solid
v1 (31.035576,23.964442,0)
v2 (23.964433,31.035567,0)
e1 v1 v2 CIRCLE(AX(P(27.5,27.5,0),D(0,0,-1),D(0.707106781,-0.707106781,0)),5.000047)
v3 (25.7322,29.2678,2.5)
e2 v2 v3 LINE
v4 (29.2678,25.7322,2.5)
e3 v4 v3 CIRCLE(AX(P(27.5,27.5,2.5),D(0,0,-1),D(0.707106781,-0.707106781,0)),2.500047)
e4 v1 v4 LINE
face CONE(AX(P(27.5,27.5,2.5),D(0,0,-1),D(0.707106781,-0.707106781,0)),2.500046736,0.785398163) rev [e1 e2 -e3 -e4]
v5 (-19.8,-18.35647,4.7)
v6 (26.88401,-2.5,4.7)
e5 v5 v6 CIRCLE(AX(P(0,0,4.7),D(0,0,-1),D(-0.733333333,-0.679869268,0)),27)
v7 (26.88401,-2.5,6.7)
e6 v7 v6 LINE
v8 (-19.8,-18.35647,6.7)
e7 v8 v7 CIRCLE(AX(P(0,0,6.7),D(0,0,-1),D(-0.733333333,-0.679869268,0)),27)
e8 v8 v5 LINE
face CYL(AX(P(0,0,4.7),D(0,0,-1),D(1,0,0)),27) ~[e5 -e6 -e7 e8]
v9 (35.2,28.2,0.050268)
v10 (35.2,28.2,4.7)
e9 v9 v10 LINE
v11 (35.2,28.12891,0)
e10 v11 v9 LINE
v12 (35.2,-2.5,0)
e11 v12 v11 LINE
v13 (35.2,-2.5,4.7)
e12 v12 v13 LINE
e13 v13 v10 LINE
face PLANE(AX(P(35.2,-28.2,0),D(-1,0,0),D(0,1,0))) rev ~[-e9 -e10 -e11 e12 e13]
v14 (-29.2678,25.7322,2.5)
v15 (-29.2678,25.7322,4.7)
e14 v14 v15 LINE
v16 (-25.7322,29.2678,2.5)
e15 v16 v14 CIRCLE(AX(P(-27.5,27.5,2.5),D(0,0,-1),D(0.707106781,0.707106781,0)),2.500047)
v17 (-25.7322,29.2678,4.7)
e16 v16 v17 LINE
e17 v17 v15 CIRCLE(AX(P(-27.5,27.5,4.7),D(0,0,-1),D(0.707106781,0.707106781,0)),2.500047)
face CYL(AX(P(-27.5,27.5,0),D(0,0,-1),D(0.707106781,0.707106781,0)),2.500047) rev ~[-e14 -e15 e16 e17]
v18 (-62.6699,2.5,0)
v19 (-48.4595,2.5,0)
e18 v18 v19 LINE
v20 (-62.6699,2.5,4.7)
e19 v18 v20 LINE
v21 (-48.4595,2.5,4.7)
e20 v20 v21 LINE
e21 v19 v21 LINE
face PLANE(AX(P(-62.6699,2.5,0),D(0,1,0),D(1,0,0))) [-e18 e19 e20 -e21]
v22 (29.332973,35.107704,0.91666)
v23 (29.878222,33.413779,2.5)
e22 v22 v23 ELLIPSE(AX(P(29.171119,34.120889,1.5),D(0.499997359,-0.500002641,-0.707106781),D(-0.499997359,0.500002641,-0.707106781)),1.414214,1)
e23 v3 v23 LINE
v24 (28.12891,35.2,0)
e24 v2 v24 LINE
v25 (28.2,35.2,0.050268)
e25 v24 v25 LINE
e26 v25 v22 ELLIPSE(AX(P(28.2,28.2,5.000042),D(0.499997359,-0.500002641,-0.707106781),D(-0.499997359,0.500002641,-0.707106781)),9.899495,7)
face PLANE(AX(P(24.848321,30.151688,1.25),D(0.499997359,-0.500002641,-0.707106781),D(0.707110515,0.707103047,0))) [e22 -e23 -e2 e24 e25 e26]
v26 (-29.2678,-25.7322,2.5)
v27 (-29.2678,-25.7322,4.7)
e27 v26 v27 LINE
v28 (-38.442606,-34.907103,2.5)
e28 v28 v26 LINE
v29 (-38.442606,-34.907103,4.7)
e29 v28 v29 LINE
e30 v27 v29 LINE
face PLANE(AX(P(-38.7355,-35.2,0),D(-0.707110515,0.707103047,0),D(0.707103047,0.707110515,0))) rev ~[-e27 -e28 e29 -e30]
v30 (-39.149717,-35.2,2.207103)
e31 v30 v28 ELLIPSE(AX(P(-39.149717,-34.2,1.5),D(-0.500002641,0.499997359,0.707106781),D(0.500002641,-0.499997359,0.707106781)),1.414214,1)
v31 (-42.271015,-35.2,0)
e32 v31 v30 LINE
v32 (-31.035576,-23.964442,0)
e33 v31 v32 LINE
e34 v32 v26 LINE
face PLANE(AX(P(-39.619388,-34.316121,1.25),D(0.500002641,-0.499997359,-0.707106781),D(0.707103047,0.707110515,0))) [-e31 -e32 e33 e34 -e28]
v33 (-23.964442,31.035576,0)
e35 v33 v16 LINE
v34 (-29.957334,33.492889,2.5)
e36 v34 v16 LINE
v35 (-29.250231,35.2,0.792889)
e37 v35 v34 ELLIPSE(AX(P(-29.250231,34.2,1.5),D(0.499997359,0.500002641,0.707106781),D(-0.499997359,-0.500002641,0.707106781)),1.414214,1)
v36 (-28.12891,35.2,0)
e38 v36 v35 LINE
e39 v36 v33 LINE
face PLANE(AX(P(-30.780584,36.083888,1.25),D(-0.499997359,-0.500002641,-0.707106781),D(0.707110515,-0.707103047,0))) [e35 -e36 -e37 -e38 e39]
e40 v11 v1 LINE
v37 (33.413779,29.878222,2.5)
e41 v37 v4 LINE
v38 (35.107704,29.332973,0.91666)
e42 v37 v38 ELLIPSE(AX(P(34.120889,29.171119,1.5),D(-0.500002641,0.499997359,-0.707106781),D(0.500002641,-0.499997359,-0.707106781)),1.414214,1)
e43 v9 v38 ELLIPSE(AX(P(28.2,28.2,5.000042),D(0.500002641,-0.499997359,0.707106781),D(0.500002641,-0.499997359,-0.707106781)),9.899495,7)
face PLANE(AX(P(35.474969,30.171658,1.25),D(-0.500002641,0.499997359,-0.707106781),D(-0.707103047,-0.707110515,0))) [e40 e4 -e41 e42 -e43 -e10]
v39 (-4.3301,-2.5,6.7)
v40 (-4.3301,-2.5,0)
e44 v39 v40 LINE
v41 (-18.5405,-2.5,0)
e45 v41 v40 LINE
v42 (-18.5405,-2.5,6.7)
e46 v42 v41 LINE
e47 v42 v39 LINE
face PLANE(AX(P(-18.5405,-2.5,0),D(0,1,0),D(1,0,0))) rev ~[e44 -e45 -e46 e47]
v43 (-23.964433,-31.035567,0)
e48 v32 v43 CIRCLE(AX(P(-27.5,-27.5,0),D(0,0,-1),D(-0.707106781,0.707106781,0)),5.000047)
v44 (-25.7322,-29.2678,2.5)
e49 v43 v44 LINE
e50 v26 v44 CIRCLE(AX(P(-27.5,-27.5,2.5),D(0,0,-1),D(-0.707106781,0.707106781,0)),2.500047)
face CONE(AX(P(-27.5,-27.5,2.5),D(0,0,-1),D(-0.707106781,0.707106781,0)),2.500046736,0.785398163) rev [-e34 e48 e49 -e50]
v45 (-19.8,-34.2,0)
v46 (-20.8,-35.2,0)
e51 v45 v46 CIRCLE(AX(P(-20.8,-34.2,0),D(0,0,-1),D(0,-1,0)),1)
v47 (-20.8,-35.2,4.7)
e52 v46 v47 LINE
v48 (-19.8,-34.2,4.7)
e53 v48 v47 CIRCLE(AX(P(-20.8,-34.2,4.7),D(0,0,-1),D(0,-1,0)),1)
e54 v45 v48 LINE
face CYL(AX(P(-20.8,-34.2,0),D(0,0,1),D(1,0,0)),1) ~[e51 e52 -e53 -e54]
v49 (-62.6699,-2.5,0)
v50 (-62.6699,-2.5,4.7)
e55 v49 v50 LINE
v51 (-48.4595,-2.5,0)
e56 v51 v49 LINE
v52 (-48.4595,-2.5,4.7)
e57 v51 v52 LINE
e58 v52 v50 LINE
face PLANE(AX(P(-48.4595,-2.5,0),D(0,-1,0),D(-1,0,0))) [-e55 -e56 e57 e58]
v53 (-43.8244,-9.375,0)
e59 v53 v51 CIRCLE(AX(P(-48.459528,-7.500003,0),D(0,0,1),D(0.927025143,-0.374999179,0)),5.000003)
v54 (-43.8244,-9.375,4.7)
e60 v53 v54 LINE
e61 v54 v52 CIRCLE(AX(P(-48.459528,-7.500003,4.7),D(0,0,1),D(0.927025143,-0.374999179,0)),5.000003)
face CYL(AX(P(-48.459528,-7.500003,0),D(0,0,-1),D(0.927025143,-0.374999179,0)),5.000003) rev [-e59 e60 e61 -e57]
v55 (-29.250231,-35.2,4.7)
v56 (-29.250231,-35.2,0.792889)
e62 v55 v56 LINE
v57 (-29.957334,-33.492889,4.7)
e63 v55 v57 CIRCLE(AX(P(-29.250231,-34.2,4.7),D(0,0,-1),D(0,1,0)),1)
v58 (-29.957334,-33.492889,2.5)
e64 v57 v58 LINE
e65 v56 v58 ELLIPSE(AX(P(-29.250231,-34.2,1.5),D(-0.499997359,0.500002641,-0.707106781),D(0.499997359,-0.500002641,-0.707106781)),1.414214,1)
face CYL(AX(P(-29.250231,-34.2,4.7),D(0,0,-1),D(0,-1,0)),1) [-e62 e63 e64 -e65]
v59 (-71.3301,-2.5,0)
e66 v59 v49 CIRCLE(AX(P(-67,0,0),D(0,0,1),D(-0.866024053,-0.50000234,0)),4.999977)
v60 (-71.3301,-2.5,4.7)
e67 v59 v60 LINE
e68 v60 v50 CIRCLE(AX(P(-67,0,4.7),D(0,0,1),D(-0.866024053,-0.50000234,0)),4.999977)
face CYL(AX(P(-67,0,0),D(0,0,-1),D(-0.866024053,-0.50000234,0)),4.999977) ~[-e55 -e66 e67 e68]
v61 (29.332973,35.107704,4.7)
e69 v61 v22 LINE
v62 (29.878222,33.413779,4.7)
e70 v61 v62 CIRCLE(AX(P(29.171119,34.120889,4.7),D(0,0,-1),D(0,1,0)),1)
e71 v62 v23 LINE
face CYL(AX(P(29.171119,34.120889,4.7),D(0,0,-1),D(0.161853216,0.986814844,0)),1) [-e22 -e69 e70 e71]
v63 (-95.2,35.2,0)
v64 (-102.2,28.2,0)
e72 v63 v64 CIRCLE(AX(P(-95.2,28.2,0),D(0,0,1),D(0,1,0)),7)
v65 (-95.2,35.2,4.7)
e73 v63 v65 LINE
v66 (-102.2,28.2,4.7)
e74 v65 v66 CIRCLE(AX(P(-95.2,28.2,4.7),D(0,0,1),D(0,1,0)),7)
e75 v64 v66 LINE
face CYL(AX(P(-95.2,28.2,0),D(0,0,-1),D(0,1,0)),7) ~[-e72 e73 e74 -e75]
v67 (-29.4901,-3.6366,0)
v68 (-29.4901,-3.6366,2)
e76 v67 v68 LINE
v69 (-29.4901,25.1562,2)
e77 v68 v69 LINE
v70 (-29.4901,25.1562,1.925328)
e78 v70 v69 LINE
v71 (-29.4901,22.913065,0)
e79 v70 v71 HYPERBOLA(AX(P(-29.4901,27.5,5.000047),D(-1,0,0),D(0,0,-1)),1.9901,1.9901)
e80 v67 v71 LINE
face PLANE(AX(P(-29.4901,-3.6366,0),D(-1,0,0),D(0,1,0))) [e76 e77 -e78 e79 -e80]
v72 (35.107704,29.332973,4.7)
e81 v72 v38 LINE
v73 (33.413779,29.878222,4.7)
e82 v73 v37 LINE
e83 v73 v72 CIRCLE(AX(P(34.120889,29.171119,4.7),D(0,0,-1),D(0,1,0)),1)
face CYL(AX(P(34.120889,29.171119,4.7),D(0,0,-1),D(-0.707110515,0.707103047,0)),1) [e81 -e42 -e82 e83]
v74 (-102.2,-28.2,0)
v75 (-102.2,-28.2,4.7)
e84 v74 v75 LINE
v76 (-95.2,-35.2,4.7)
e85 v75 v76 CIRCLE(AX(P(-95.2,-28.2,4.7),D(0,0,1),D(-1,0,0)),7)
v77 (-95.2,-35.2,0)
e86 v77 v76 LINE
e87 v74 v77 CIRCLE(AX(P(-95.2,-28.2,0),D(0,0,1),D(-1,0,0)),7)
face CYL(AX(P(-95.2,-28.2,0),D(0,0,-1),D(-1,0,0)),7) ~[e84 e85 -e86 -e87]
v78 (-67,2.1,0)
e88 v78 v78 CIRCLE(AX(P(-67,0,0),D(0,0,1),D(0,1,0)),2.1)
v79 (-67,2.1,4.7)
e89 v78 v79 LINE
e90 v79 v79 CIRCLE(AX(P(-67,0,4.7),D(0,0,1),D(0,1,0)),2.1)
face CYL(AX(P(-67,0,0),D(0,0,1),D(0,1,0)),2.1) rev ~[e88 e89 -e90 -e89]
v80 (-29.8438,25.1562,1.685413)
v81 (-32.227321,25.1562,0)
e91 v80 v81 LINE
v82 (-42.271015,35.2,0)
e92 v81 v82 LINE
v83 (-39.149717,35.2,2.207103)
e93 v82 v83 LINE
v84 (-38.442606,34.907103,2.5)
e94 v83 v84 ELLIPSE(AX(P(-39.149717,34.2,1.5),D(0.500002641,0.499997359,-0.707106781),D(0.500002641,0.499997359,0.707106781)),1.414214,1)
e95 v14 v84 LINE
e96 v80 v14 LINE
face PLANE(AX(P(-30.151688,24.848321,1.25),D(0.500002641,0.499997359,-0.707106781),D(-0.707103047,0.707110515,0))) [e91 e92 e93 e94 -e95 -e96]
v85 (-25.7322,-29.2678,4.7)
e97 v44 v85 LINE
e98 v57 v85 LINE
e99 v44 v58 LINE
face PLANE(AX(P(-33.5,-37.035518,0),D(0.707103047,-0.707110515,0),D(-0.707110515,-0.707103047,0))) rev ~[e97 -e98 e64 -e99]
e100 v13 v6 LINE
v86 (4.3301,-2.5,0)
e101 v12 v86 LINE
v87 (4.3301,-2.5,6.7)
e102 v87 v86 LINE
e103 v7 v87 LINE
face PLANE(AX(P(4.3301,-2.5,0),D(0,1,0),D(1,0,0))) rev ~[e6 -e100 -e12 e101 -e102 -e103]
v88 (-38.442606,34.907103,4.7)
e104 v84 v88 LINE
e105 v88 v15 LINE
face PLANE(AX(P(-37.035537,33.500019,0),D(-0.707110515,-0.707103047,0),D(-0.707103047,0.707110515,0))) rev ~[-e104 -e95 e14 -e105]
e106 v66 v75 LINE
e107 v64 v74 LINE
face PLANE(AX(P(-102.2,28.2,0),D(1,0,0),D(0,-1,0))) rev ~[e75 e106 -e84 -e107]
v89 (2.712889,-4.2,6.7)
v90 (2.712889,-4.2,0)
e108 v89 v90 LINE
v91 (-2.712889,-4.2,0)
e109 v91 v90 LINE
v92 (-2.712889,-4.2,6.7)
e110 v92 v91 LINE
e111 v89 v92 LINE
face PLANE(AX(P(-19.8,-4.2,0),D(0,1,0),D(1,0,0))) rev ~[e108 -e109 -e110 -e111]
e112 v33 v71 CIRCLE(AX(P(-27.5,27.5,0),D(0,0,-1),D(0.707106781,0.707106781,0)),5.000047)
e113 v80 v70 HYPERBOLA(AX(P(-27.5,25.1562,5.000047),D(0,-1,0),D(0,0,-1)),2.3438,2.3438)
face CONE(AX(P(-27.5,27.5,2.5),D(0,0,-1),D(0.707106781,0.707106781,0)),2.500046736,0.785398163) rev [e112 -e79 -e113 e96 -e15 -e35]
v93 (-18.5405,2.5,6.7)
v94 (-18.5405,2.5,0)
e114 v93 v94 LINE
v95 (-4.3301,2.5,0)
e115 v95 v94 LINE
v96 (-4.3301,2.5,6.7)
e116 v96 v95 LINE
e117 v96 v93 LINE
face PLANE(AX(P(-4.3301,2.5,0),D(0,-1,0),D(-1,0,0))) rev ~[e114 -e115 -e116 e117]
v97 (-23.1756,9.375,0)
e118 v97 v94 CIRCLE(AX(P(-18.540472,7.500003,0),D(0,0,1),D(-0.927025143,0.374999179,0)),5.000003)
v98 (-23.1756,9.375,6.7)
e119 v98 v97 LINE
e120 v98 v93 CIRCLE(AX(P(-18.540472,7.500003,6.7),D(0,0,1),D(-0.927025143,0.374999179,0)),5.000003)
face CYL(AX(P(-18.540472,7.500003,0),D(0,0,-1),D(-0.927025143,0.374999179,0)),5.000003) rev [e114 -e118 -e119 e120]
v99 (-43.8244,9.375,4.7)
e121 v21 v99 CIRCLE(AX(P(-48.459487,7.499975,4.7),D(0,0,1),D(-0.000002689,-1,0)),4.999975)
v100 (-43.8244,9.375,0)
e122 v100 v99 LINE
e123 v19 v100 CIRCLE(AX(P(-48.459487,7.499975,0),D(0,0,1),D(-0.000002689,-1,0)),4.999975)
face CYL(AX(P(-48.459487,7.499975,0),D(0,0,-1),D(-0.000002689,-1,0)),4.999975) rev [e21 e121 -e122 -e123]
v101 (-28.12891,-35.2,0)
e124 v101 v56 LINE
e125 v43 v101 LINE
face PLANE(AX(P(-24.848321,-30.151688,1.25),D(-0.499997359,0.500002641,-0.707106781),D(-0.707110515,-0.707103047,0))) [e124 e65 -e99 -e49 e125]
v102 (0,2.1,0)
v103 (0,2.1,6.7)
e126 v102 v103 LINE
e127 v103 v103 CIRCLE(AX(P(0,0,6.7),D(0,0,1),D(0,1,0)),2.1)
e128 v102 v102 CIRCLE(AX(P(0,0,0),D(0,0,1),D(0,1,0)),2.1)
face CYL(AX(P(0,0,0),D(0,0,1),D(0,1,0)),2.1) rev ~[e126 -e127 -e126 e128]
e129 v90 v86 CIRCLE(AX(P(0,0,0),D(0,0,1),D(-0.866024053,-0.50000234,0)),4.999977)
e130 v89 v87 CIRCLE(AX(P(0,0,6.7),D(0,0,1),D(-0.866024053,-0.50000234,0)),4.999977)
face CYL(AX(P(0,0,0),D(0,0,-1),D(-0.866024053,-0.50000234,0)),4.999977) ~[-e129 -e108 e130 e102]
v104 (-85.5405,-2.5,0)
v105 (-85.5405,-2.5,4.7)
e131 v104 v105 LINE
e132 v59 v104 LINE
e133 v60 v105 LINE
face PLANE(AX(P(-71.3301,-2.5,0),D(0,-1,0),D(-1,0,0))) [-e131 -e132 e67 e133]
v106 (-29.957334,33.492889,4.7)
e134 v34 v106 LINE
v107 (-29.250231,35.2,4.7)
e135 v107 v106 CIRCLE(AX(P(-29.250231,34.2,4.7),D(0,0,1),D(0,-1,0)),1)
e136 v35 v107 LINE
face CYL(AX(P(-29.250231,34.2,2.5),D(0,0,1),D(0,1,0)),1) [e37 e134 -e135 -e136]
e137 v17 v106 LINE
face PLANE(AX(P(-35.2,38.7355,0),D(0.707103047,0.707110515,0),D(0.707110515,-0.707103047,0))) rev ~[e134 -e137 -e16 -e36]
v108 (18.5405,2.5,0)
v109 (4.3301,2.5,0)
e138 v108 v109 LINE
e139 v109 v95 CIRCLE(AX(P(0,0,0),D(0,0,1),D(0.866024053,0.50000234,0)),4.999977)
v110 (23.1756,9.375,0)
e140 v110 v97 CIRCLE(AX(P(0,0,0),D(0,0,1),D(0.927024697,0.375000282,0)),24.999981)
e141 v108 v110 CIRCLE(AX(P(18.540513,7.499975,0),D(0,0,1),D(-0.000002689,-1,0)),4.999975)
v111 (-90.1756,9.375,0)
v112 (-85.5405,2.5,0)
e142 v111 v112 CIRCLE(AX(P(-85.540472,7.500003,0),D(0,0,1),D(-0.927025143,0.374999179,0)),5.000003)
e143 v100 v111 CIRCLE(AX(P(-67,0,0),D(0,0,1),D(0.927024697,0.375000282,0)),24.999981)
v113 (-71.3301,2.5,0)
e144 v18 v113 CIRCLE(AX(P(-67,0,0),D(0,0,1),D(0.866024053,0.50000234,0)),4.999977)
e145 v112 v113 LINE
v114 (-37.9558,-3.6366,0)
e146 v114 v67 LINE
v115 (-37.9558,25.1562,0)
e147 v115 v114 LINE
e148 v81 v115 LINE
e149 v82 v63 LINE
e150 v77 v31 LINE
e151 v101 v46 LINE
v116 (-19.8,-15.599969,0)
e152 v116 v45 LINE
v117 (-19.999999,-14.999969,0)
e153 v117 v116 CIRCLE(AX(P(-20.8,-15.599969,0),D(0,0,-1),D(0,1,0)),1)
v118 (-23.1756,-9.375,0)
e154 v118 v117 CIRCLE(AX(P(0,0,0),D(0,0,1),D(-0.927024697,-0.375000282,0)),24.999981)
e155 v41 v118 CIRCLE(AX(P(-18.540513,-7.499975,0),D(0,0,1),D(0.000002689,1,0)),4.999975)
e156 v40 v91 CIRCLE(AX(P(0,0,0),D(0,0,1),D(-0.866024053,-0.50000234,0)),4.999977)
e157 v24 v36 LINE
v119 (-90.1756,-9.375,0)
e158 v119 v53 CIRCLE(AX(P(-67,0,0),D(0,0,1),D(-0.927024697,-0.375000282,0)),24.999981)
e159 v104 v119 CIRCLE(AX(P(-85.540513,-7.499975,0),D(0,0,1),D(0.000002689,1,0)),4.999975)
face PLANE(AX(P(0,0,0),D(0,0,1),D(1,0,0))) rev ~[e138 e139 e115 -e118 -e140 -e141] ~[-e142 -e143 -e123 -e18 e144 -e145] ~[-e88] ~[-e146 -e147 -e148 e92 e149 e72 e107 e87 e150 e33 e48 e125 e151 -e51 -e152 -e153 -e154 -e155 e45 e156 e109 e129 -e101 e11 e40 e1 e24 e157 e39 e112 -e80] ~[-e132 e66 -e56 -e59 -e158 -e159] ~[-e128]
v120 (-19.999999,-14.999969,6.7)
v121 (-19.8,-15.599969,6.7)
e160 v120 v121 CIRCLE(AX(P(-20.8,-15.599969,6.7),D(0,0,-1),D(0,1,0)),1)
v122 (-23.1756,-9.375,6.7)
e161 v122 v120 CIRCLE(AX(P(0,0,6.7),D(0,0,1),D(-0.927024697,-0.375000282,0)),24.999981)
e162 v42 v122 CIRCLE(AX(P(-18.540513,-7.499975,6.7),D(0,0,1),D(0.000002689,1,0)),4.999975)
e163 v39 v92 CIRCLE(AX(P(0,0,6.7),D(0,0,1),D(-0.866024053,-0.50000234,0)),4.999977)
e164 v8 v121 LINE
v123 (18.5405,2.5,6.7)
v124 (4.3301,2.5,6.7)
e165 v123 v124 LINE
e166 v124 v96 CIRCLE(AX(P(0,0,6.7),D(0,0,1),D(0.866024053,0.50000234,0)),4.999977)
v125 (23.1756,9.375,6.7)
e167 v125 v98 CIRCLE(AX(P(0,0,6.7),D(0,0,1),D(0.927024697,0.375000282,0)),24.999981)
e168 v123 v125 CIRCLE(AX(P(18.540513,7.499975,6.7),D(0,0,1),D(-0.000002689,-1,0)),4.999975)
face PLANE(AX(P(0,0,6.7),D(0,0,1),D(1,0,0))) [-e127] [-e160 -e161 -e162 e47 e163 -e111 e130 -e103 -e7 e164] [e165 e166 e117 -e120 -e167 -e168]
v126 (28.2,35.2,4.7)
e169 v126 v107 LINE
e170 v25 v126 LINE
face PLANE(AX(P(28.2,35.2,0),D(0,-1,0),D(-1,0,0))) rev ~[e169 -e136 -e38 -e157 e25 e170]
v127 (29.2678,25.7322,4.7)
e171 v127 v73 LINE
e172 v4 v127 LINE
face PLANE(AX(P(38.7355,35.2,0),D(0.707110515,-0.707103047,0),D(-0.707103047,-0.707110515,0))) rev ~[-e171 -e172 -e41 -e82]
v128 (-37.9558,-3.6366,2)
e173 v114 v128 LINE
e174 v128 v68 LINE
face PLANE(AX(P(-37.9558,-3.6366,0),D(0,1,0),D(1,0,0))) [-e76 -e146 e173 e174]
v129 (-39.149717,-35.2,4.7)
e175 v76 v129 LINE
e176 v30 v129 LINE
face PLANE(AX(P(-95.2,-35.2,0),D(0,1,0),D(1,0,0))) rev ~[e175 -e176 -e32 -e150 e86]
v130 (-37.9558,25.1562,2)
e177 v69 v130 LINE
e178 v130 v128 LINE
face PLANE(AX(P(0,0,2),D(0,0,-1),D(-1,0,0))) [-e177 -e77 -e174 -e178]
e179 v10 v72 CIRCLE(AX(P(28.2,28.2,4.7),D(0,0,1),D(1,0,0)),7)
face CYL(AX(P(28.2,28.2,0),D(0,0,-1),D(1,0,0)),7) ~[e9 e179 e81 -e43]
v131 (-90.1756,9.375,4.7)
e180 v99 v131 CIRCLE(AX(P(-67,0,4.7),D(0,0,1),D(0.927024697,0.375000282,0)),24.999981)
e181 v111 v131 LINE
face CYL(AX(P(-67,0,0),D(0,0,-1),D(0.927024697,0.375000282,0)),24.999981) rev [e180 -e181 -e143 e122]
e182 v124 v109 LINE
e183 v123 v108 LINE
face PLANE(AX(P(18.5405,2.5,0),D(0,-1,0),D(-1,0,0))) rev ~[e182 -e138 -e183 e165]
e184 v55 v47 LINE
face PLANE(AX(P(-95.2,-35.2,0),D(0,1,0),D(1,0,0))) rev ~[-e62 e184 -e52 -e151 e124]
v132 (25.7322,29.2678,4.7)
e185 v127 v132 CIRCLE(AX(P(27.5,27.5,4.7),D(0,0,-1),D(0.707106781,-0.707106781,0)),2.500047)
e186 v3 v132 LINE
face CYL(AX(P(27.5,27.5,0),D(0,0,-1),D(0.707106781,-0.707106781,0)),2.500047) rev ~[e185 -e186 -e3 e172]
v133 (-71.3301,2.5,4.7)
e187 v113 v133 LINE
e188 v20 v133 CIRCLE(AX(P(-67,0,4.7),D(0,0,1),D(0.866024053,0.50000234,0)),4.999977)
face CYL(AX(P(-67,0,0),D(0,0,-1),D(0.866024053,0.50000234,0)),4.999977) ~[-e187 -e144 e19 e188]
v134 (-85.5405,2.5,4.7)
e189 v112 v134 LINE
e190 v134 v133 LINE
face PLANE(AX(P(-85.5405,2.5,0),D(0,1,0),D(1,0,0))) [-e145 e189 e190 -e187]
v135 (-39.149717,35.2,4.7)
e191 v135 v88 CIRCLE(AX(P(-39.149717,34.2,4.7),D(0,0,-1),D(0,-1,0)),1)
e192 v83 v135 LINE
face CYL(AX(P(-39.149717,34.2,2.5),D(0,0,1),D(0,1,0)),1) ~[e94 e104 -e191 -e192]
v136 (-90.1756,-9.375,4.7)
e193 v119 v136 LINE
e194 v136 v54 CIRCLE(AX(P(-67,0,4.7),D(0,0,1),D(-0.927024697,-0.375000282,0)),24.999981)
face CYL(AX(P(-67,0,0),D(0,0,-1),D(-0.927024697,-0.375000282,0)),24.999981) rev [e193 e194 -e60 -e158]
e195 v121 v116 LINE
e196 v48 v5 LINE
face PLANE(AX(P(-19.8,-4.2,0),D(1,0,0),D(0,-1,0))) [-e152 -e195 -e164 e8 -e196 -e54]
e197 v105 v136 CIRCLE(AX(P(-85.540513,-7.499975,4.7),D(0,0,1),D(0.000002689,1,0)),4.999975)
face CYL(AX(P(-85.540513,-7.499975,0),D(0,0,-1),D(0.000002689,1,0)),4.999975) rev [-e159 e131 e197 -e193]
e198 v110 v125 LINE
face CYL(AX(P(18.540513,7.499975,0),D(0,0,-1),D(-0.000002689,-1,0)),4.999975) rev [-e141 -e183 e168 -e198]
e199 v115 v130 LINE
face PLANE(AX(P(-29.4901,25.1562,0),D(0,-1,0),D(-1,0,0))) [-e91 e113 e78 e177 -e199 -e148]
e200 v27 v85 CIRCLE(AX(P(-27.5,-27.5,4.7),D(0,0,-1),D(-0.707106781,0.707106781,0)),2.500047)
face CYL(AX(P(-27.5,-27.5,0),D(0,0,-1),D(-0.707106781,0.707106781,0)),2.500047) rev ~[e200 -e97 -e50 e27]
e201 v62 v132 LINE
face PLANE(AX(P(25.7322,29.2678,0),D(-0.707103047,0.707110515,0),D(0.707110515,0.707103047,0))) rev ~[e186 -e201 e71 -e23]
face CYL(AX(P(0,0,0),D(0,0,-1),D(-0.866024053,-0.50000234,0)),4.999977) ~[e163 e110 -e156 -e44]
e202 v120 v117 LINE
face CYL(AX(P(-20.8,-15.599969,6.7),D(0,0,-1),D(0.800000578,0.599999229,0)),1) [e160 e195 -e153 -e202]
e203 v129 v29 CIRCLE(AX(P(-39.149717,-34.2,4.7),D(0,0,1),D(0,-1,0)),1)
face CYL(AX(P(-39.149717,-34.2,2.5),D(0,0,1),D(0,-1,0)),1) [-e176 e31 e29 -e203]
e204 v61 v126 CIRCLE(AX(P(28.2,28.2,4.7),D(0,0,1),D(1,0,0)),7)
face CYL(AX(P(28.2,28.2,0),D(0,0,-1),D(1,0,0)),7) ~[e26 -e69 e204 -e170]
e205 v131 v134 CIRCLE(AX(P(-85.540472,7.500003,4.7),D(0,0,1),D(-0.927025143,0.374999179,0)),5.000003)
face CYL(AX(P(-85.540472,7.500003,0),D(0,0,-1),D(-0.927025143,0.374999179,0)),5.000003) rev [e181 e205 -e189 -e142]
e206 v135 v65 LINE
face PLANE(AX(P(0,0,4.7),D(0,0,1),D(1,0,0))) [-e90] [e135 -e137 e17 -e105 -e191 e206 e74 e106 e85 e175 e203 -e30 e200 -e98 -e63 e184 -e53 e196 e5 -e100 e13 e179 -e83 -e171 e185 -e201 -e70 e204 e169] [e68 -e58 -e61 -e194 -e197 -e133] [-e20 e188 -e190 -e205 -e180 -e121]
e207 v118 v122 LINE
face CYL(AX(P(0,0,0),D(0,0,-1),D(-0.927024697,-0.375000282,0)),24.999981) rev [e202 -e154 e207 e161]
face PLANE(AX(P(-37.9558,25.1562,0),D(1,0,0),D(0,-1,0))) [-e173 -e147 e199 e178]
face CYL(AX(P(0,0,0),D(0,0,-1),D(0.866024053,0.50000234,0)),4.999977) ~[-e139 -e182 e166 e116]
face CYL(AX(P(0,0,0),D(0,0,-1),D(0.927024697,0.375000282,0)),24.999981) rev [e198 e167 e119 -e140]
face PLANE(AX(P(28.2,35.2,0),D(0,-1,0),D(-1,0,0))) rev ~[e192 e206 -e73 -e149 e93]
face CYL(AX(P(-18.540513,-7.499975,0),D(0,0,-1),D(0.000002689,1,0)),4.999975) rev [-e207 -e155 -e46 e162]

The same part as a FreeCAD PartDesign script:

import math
import FreeCAD as App
import Part
import Sketcher
from FreeCAD import Vector
Q = App.Units.Quantity


def edges_at(feature, points):
    """Names of the edges that pass closest to the given points."""
    edges = feature.Shape.Edges
    near = lambda p: min(range(len(edges)), key=lambda i: edges[i].distToShape(Part.Vertex(*p))[0])
    return sorted({f"Edge{near(p) + 1}" for p in points})

doc = App.newDocument("Part")
body = doc.addObject("PartDesign::Body", "Body")

sketch1 = body.newObject("Sketcher::SketchObject", "Sketch")
sketch1.AttachmentSupport = (doc.getObject("XY_Plane"), [""])
sketch1.MapMode = "FlatFace"
sketch1.addGeometry([
    Part.ArcOfCircle(Part.Circle(Vector(-95.2, -28.2, 0), Vector(0, 0, 1), 7), math.radians(180), math.radians(270)),
    Part.LineSegment(Vector(-95.2, -35.2, 0), Vector(28.2, -35.2, 0)),
    Part.ArcOfCircle(Part.Circle(Vector(28.2, -28.2, 0), Vector(0, 0, 1), 7), math.radians(-90), math.radians(0)),
    Part.LineSegment(Vector(35.2, -28.2, 0), Vector(35.2, 28.2, 0)),
    Part.ArcOfCircle(Part.Circle(Vector(28.2, 28.2, 0), Vector(0, 0, 1), 7), math.radians(0), math.radians(90)),
    Part.LineSegment(Vector(28.2, 35.2, 0), Vector(-95.2, 35.2, 0)),
    Part.ArcOfCircle(Part.Circle(Vector(-95.2, 28.2, 0), Vector(0, 0, 1), 7), math.radians(90), math.radians(180)),
    Part.LineSegment(Vector(-102.2, 28.2, 0), Vector(-102.2, -28.2, 0)),
    Part.ArcOfCircle(Part.Circle(Vector(-67, 0, 0), Vector(0, 0, 1), 25), math.radians(-158), math.radians(-22)),
    Part.ArcOfCircle(Part.Circle(Vector(-85.5, -7.5, 0), Vector(0, 0, 1), 5), math.radians(90), math.radians(202)),
    Part.LineSegment(Vector(-85.5, -2.5, 0), Vector(-71.3, -2.5, 0)),
    Part.ArcOfCircle(Part.Circle(Vector(-67, 0, 0), Vector(0, 0, 1), 5), math.radians(-150), math.radians(-30)),
    Part.LineSegment(Vector(-62.7, -2.5, 0), Vector(-48.5, -2.5, 0)),
    Part.ArcOfCircle(Part.Circle(Vector(-48.5, -7.5, 0), Vector(0, 0, 1), 5), math.radians(-22), math.radians(90)),
    Part.ArcOfCircle(Part.Circle(Vector(0, 0, 0), Vector(0, 0, 1), 25), math.radians(-158), math.radians(-22)),
    Part.ArcOfCircle(Part.Circle(Vector(-18.5, -7.5, 0), Vector(0, 0, 1), 5), math.radians(90), math.radians(202)),
    Part.LineSegment(Vector(-18.5, -2.5, 0), Vector(-4.3, -2.5, 0)),
    Part.ArcOfCircle(Part.Circle(Vector(0, 0, 0), Vector(0, 0, 1), 5), math.radians(-150), math.radians(-30)),
    Part.LineSegment(Vector(4.3, -2.5, 0), Vector(18.5, -2.5, 0)),
    Part.ArcOfCircle(Part.Circle(Vector(18.5, -7.5, 0), Vector(0, 0, 1), 5), math.radians(-22), math.radians(90)),
    Part.ArcOfCircle(Part.Circle(Vector(-67, 0, 0), Vector(0, 0, 1), 25), math.radians(22), math.radians(158)),
    Part.ArcOfCircle(Part.Circle(Vector(-48.5, 7.5, 0), Vector(0, 0, 1), 5), math.radians(-90), math.radians(22)),
    Part.LineSegment(Vector(-48.5, 2.5, 0), Vector(-62.7, 2.5, 0)),
    Part.ArcOfCircle(Part.Circle(Vector(-67, 0, 0), Vector(0, 0, 1), 5), math.radians(30), math.radians(150)),
    Part.LineSegment(Vector(-71.3, 2.5, 0), Vector(-85.5, 2.5, 0)),
    Part.ArcOfCircle(Part.Circle(Vector(-85.5, 7.5, 0), Vector(0, 0, 1), 5), math.radians(158), math.radians(270)),
    Part.ArcOfCircle(Part.Circle(Vector(0, 0, 0), Vector(0, 0, 1), 25), math.radians(22), math.radians(158)),
    Part.ArcOfCircle(Part.Circle(Vector(18.5, 7.5, 0), Vector(0, 0, 1), 5), math.radians(-90), math.radians(22)),
    Part.LineSegment(Vector(18.5, 2.5, 0), Vector(4.3, 2.5, 0)),
    Part.ArcOfCircle(Part.Circle(Vector(0, 0, 0), Vector(0, 0, 1), 5), math.radians(30), math.radians(150)),
    Part.LineSegment(Vector(-4.3, 2.5, 0), Vector(-18.5, 2.5, 0)),
    Part.ArcOfCircle(Part.Circle(Vector(-18.5, 7.5, 0), Vector(0, 0, 1), 5), math.radians(158), math.radians(270)),
], False)
sketch1.addConstraint([
    Sketcher.Constraint("Tangent", 0, 2, 1, 1),
    Sketcher.Constraint("Tangent", 1, 2, 2, 1),
    Sketcher.Constraint("Tangent", 2, 2, 3, 1),
    Sketcher.Constraint("Tangent", 3, 2, 4, 1),
    Sketcher.Constraint("Tangent", 4, 2, 5, 1),
    Sketcher.Constraint("Tangent", 5, 2, 6, 1),
    Sketcher.Constraint("Tangent", 6, 2, 7, 1),
    Sketcher.Constraint("Tangent", 7, 2, 0, 1),
    Sketcher.Constraint("Tangent", 8, 1, 9, 2),
    Sketcher.Constraint("Tangent", 9, 1, 10, 1),
    Sketcher.Constraint("Coincident", 10, 2, 11, 1),
    Sketcher.Constraint("Coincident", 11, 2, 12, 1),
    Sketcher.Constraint("Tangent", 12, 2, 13, 2),
    Sketcher.Constraint("Tangent", 13, 1, 8, 2),
    Sketcher.Constraint("Tangent", 14, 1, 15, 2),
    Sketcher.Constraint("Tangent", 15, 1, 16, 1),
    Sketcher.Constraint("Coincident", 16, 2, 17, 1),
    Sketcher.Constraint("Coincident", 17, 2, 18, 1),
    Sketcher.Constraint("Tangent", 18, 2, 19, 2),
    Sketcher.Constraint("Tangent", 19, 1, 14, 2),
    Sketcher.Constraint("Tangent", 20, 1, 21, 2),
    Sketcher.Constraint("Tangent", 21, 1, 22, 1),
    Sketcher.Constraint("Coincident", 22, 2, 23, 1),
    Sketcher.Constraint("Coincident", 23, 2, 24, 1),
    Sketcher.Constraint("Tangent", 24, 2, 25, 2),
    Sketcher.Constraint("Tangent", 25, 1, 20, 2),
    Sketcher.Constraint("Tangent", 26, 1, 27, 2),
    Sketcher.Constraint("Tangent", 27, 1, 28, 1),
    Sketcher.Constraint("Coincident", 28, 2, 29, 1),
    Sketcher.Constraint("Coincident", 29, 2, 30, 1),
    Sketcher.Constraint("Tangent", 30, 2, 31, 2),
    Sketcher.Constraint("Tangent", 31, 1, 26, 2),
    Sketcher.Constraint("Horizontal", 1),
    Sketcher.Constraint("Vertical", 3),
    Sketcher.Constraint("Horizontal", 5),
    Sketcher.Constraint("Vertical", 7),
    Sketcher.Constraint("Horizontal", 10),
    Sketcher.Constraint("Horizontal", 12),
    Sketcher.Constraint("Horizontal", 16),
    Sketcher.Constraint("Horizontal", 18),
    Sketcher.Constraint("Horizontal", 22),
    Sketcher.Constraint("Horizontal", 24),
    Sketcher.Constraint("Horizontal", 28),
    Sketcher.Constraint("Horizontal", 30),
    Sketcher.Constraint("Coincident", 14, 3, -1, 1),
    Sketcher.Constraint("Coincident", 17, 3, -1, 1),
    Sketcher.Constraint("Coincident", 26, 3, -1, 1),
    Sketcher.Constraint("Coincident", 29, 3, -1, 1),
    Sketcher.Constraint("Coincident", 11, 3, 8, 3),
    Sketcher.Constraint("Coincident", 20, 3, 8, 3),
    Sketcher.Constraint("Coincident", 23, 3, 8, 3),
    Sketcher.Constraint("Equal", 0, 2),
    Sketcher.Constraint("Equal", 2, 4),
    Sketcher.Constraint("Equal", 4, 6),
    Sketcher.Constraint("Equal", 9, 11),
    Sketcher.Constraint("Equal", 11, 13),
    Sketcher.Constraint("Equal", 8, 14),
    Sketcher.Constraint("Equal", 13, 15),
    Sketcher.Constraint("Equal", 15, 17),
    Sketcher.Constraint("Equal", 17, 19),
    Sketcher.Constraint("Equal", 14, 20),
    Sketcher.Constraint("Equal", 19, 21),
    Sketcher.Constraint("Equal", 21, 23),
    Sketcher.Constraint("Equal", 23, 25),
    Sketcher.Constraint("Equal", 20, 26),
    Sketcher.Constraint("Equal", 25, 27),
    Sketcher.Constraint("Equal", 27, 29),
    Sketcher.Constraint("Equal", 29, 31),
    Sketcher.Constraint("Symmetric", 13, 3, 21, 3, -1),
    Sketcher.Constraint("Horizontal", 9, 3, 13, 3),
    Sketcher.Constraint("Horizontal", 13, 3, 15, 3),
    Sketcher.Constraint("Horizontal", 15, 3, 19, 3),
    Sketcher.Constraint("Horizontal", 21, 3, 25, 3),
    Sketcher.Constraint("Horizontal", 25, 3, 27, 3),
    Sketcher.Constraint("Horizontal", 27, 3, 31, 3),
    Sketcher.Constraint("Radius", 0, Q("7 mm")),
    Sketcher.Constraint("Radius", 8, Q("25 mm")),
    Sketcher.Constraint("Radius", 9, Q("5 mm")),
    Sketcher.Constraint("DistanceX", 8, 3, -1, 1, Q("67 mm")),
    Sketcher.Constraint("DistanceY", 9, 1, 25, 3, Q("10 mm")),
    Sketcher.Constraint("DistanceX", 1, 1, 1, 2, Q("123.4 mm")),
    Sketcher.Constraint("DistanceY", 3, 1, 3, 2, Q("56.4 mm")),
    Sketcher.Constraint("DistanceX", 0, 3, -1, 1, Q("95.2 mm")),
    Sketcher.Constraint("DistanceY", 0, 3, -1, 1, Q("28.2 mm")),
])
pad1 = body.newObject("PartDesign::Pad", "Pad")
pad1.Profile = sketch1
pad1.Length = 4.7

sketch2 = body.newObject("Sketcher::SketchObject", "Sketch001")
sketch2.AttachmentSupport = (doc.getObject("XY_Plane"), [""])
sketch2.MapMode = "FlatFace"
sketch2.AttachmentOffset = App.Placement(Vector(0, 0, 4.7), App.Rotation())
sketch2.addGeometry([
    Part.Circle(Vector(0, 0, 0), Vector(0, 0, 1), 27),
    Part.ArcOfCircle(Part.Circle(Vector(-18.5, -7.5, 0), Vector(0, 0, 1), 5), math.radians(90), math.radians(202)),
    Part.LineSegment(Vector(-18.5, -2.5, 0), Vector(-4.3, -2.5, 0)),
    Part.ArcOfCircle(Part.Circle(Vector(0, 0, 0), Vector(0, 0, 1), 5), math.radians(-150), math.radians(-30)),
    Part.LineSegment(Vector(4.3, -2.5, 0), Vector(18.5, -2.5, 0)),
    Part.ArcOfCircle(Part.Circle(Vector(18.5, -7.5, 0), Vector(0, 0, 1), 5), math.radians(-22), math.radians(90)),
    Part.ArcOfCircle(Part.Circle(Vector(0, 0, 0), Vector(0, 0, 1), 25), math.radians(-158), math.radians(-22)),
    Part.ArcOfCircle(Part.Circle(Vector(0, 0, 0), Vector(0, 0, 1), 25), math.radians(22), math.radians(158)),
    Part.ArcOfCircle(Part.Circle(Vector(18.5, 7.5, 0), Vector(0, 0, 1), 5), math.radians(-90), math.radians(22)),
    Part.LineSegment(Vector(18.5, 2.5, 0), Vector(4.3, 2.5, 0)),
    Part.ArcOfCircle(Part.Circle(Vector(0, 0, 0), Vector(0, 0, 1), 5), math.radians(30), math.radians(150)),
    Part.LineSegment(Vector(-4.3, 2.5, 0), Vector(-18.5, 2.5, 0)),
    Part.ArcOfCircle(Part.Circle(Vector(-18.5, 7.5, 0), Vector(0, 0, 1), 5), math.radians(158), math.radians(270)),
], False)
sketch2.addConstraint([
    Sketcher.Constraint("Tangent", 1, 1, 2, 1),
    Sketcher.Constraint("Coincident", 2, 2, 3, 1),
    Sketcher.Constraint("Coincident", 3, 2, 4, 1),
    Sketcher.Constraint("Tangent", 4, 2, 5, 2),
    Sketcher.Constraint("Tangent", 5, 1, 6, 2),
    Sketcher.Constraint("Tangent", 6, 1, 1, 2),
    Sketcher.Constraint("Tangent", 7, 1, 8, 2),
    Sketcher.Constraint("Tangent", 8, 1, 9, 1),
    Sketcher.Constraint("Coincident", 9, 2, 10, 1),
    Sketcher.Constraint("Coincident", 10, 2, 11, 1),
    Sketcher.Constraint("Tangent", 11, 2, 12, 2),
    Sketcher.Constraint("Tangent", 12, 1, 7, 2),
    Sketcher.Constraint("Horizontal", 2),
    Sketcher.Constraint("Horizontal", 4),
    Sketcher.Constraint("Horizontal", 9),
    Sketcher.Constraint("Horizontal", 11),
    Sketcher.Constraint("Coincident", 0, 3, -1, 1),
    Sketcher.Constraint("Coincident", 3, 3, -1, 1),
    Sketcher.Constraint("Coincident", 6, 3, -1, 1),
    Sketcher.Constraint("Coincident", 7, 3, -1, 1),
    Sketcher.Constraint("Coincident", 10, 3, -1, 1),
    Sketcher.Constraint("Equal", 1, 3),
    Sketcher.Constraint("Equal", 3, 5),
    Sketcher.Constraint("Equal", 6, 7),
    Sketcher.Constraint("Equal", 5, 8),
    Sketcher.Constraint("Equal", 8, 10),
    Sketcher.Constraint("Equal", 10, 12),
    Sketcher.Constraint("Horizontal", 1, 3, 5, 3),
    Sketcher.Constraint("Horizontal", 8, 3, 12, 3),
    Sketcher.Constraint("Vertical", 5, 3, 8, 3),
    Sketcher.Constraint("Diameter", 0, Q("54 mm")),
    Sketcher.Constraint("Radius", 1, Q("5 mm")),
    Sketcher.Constraint("Radius", 6, Q("25 mm")),
    Sketcher.Constraint("DistanceY", 5, 3, 8, 3, Q("15 mm")),
])
pad2 = body.newObject("PartDesign::Pad", "Pad001")
pad2.Profile = sketch2
pad2.Length = 2

sketch3 = body.newObject("Sketcher::SketchObject", "Sketch002")
sketch3.AttachmentSupport = (doc.getObject("XY_Plane"), [""])
sketch3.MapMode = "FlatFace"
sketch3.addGeometry([
    Part.ArcOfCircle(Part.Circle(Vector(27.5, 27.5, 0), Vector(0, 0, 1), 2.5), math.radians(135), math.radians(315)),
    Part.LineSegment(Vector(25.7, 29.3, 0), Vector(35.2, 38.7, 0)),
    Part.ArcOfCircle(Part.Circle(Vector(37, 37, 0), Vector(0, 0, 1), 2.5), math.radians(-45), math.radians(135)),
    Part.LineSegment(Vector(38.7, 35.2, 0), Vector(29.3, 25.7, 0)),
    Part.LineSegment(Vector(29.3, -25.7, 0), Vector(38.7, -35.2, 0)),
    Part.ArcOfCircle(Part.Circle(Vector(37, -37, 0), Vector(0, 0, 1), 2.5), math.radians(-135), math.radians(45)),
    Part.LineSegment(Vector(35.2, -38.7, 0), Vector(25.7, -29.3, 0)),
    Part.ArcOfCircle(Part.Circle(Vector(27.5, -27.5, 0), Vector(0, 0, 1), 2.5), math.radians(45), math.radians(225)),
    Part.ArcOfCircle(Part.Circle(Vector(-37, -37, 0), Vector(0, 0, 1), 2.5), math.radians(135), math.radians(315)),
    Part.LineSegment(Vector(-38.7, -35.2, 0), Vector(-29.3, -25.7, 0)),
    Part.ArcOfCircle(Part.Circle(Vector(-27.5, -27.5, 0), Vector(0, 0, 1), 2.5), math.radians(-45), math.radians(135)),
    Part.LineSegment(Vector(-25.7, -29.3, 0), Vector(-35.2, -38.7, 0)),
    Part.ArcOfCircle(Part.Circle(Vector(-37, 37, 0), Vector(0, 0, 1), 2.5), math.radians(45), math.radians(225)),
    Part.LineSegment(Vector(-35.2, 38.7, 0), Vector(-25.7, 29.3, 0)),
    Part.ArcOfCircle(Part.Circle(Vector(-27.5, 27.5, 0), Vector(0, 0, 1), 2.5), math.radians(-135), math.radians(45)),
    Part.LineSegment(Vector(-29.3, 25.7, 0), Vector(-38.7, 35.2, 0)),
], False)
sketch3.addConstraint([
    Sketcher.Constraint("Tangent", 0, 1, 1, 1),
    Sketcher.Constraint("Tangent", 1, 2, 2, 2),
    Sketcher.Constraint("Tangent", 2, 1, 3, 1),
    Sketcher.Constraint("Tangent", 3, 2, 0, 2),
    Sketcher.Constraint("Tangent", 4, 2, 5, 2),
    Sketcher.Constraint("Tangent", 5, 1, 6, 1),
    Sketcher.Constraint("Tangent", 6, 2, 7, 2),
    Sketcher.Constraint("Tangent", 7, 1, 4, 1),
    Sketcher.Constraint("Tangent", 8, 1, 9, 1),
    Sketcher.Constraint("Tangent", 9, 2, 10, 2),
    Sketcher.Constraint("Tangent", 10, 1, 11, 1),
    Sketcher.Constraint("Tangent", 11, 2, 8, 2),
    Sketcher.Constraint("Tangent", 12, 1, 13, 1),
    Sketcher.Constraint("Tangent", 13, 2, 14, 2),
    Sketcher.Constraint("Tangent", 14, 1, 15, 1),
    Sketcher.Constraint("Tangent", 15, 2, 12, 2),
    Sketcher.Constraint("Equal", 0, 2),
    Sketcher.Constraint("Equal", 2, 5),
    Sketcher.Constraint("Equal", 5, 7),
    Sketcher.Constraint("Equal", 7, 8),
    Sketcher.Constraint("Equal", 8, 10),
    Sketcher.Constraint("Equal", 10, 12),
    Sketcher.Constraint("Equal", 12, 14),
    Sketcher.Constraint("Symmetric", 2, 3, 8, 3, -1, 1),
    Sketcher.Constraint("Symmetric", 0, 3, 10, 3, -1, 1),
    Sketcher.Constraint("Symmetric", 5, 3, 12, 3, -1, 1),
    Sketcher.Constraint("Symmetric", 7, 3, 14, 3, -1, 1),
    Sketcher.Constraint("Symmetric", 5, 3, 8, 3, -2),
    Sketcher.Constraint("Symmetric", 7, 3, 10, 3, -2),
    Sketcher.Constraint("Perpendicular", 3, 4),
    Sketcher.Constraint("Radius", 0, Q("2.5 mm")),
    Sketcher.Constraint("DistanceY", 7, 3, 0, 3, Q("55 mm")),
    Sketcher.Constraint("DistanceX", 10, 3, 7, 3, Q("55 mm")),
    Sketcher.Constraint("DistanceX", -1, 1, 1, 2, Q("35.2 mm")),
])
pocket1 = body.newObject("PartDesign::Pocket", "Pocket")
pocket1.Profile = sketch3
pocket1.Type = "ThroughAll"
pocket1.Reversed = True
doc.recompute()

chamfer = body.newObject("PartDesign::Chamfer", "Chamfer")
chamfer.Base = (pocket1, edges_at(pocket1, [
    (28.394, 31.929, 0),
    (25.732, 25.732, 0),
    (31.929, 28.394, 0),
    (-28.698, 32.234, 0),
    (-25.732, 25.732, 0),
    (-34.002, 30.466, 0),
    (-25.732, -25.732, 0),
    (-34.002, -30.466, 0),
    (-28.698, -32.234, 0),
    (25.732, -25.732, 0),
    (28.394, -31.929, 0),
    (31.929, -28.394, 0),
]))
chamfer.Size = 2.5
doc.recompute()

fillet = body.newObject("PartDesign::Fillet", "Fillet")
fillet.Base = (chamfer, edges_at(chamfer, [
    (34.591, -31.055, 3.6),
    (31.055, -34.591, 3.6),
    (31.055, 34.591, 3.6),
    (34.591, 31.055, 3.6),
    (-31.665, 35.2, 3.6),
    (-38.736, 35.2, 3.6),
    (-31.665, -35.2, 3.6),
    (-38.736, -35.2, 3.6),
]))
fillet.Radius = 1

sketch4 = body.newObject("Sketcher::SketchObject", "Sketch003")
sketch4.AttachmentSupport = (doc.getObject("XY_Plane"), [""])
sketch4.MapMode = "FlatFace"
sketch4.addGeometry([
    Part.Circle(Vector(0, 0, 0), Vector(0, 0, 1), 2.1),
    Part.Circle(Vector(-67, 0, 0), Vector(0, 0, 1), 2.1),
], False)
sketch4.addConstraint([
    Sketcher.Constraint("Coincident", 0, 3, -1, 1),
    Sketcher.Constraint("Equal", 0, 1),
    Sketcher.Constraint("PointOnObject", 1, 3, -1),
    Sketcher.Constraint("Diameter", 0, Q("4.2 mm")),
    Sketcher.Constraint("DistanceX", 1, 3, -1, 1, Q("67 mm")),
])
doc.recompute()
hole = body.newObject("PartDesign::Hole", "Hole")
hole.Profile = sketch4
hole.ThreadType = "None"
hole.Diameter = 4.2
hole.DepthType = "ThroughAll"
hole.Reversed = True

sketch5 = body.newObject("Sketcher::SketchObject", "Sketch004")
sketch5.AttachmentSupport = (doc.getObject("XY_Plane"), [""])
sketch5.MapMode = "FlatFace"
sketch5.addGeometry([
    Part.LineSegment(Vector(-19.8, -35.2, 0), Vector(-19.8, -4.2, 0)),
    Part.LineSegment(Vector(-19.8, -4.2, 0), Vector(4.3, -4.2, 0)),
    Part.LineSegment(Vector(4.3, -4.2, 0), Vector(4.3, -2.5, 0)),
    Part.LineSegment(Vector(4.3, -2.5, 0), Vector(35.2, -2.5, 0)),
    Part.LineSegment(Vector(35.2, -2.5, 0), Vector(35.2, -35.2, 0)),
    Part.LineSegment(Vector(35.2, -35.2, 0), Vector(-19.8, -35.2, 0)),
], False)
sketch5.addConstraint([
    Sketcher.Constraint("Coincident", 0, 2, 1, 1),
    Sketcher.Constraint("Coincident", 1, 2, 2, 1),
    Sketcher.Constraint("Coincident", 2, 2, 3, 1),
    Sketcher.Constraint("Coincident", 3, 2, 4, 1),
    Sketcher.Constraint("Coincident", 4, 2, 5, 1),
    Sketcher.Constraint("Coincident", 5, 2, 0, 1),
    Sketcher.Constraint("Vertical", 0),
    Sketcher.Constraint("Horizontal", 1),
    Sketcher.Constraint("Vertical", 2),
    Sketcher.Constraint("Horizontal", 3),
    Sketcher.Constraint("Vertical", 4),
    Sketcher.Constraint("Horizontal", 5),
    Sketcher.Constraint("DistanceX", 5, 2, 5, 1, Q("55 mm")),
    Sketcher.Constraint("DistanceY", 0, 1, 0, 2, Q("31 mm")),
    Sketcher.Constraint("DistanceY", 2, 1, 2, 2, Q("1.7 mm")),
    Sketcher.Constraint("DistanceX", 1, 1, 1, 2, Q("24.13 mm")),
    Sketcher.Constraint("DistanceX", 0, 2, -1, 1, Q("19.8 mm")),
    Sketcher.Constraint("DistanceY", 0, 2, -1, 1, Q("4.2 mm")),
])
pocket2 = body.newObject("PartDesign::Pocket", "Pocket001")
pocket2.Profile = sketch5
pocket2.Type = "ThroughAll"
pocket2.Reversed = True
doc.recompute()

fillet2 = body.newObject("PartDesign::Fillet", "Fillet001")
fillet2.Base = (pocket2, edges_at(pocket2, [(-19.8, -15.263, 3.35), (-19.8, -35.2, 2.35)]))
fillet2.Radius = 1

sketch6 = body.newObject("Sketcher::SketchObject", "Sketch005")
sketch6.AttachmentSupport = (doc.getObject("XY_Plane"), [""])
sketch6.MapMode = "FlatFace"
sketch6.addGeometry([
    Part.LineSegment(Vector(-38, 25, 0), Vector(-29, 25, 0)),
    Part.LineSegment(Vector(-29, 25, 0), Vector(-29, -4, 0)),
    Part.LineSegment(Vector(-29, -4, 0), Vector(-38, -4, 0)),
    Part.LineSegment(Vector(-38, -4, 0), Vector(-38, 25, 0)),
], False)
sketch6.addConstraint([
    Sketcher.Constraint("Coincident", 0, 2, 1, 1),
    Sketcher.Constraint("Coincident", 1, 2, 2, 1),
    Sketcher.Constraint("Coincident", 2, 2, 3, 1),
    Sketcher.Constraint("Coincident", 3, 2, 0, 1),
    Sketcher.Constraint("Horizontal", 0),
    Sketcher.Constraint("Vertical", 1),
    Sketcher.Constraint("Horizontal", 2),
    Sketcher.Constraint("Vertical", 3),
    Sketcher.Constraint("DistanceX", 0, 2, -1, 1, Q("29.49 mm")),
    Sketcher.Constraint("DistanceX", 0, 1, 0, 2, Q("8.4657 mm")),
    Sketcher.Constraint("DistanceY", 1, 2, 1, 1, Q("28.7928 mm")),
    Sketcher.Constraint("DistanceY", -1, 1, 0, 2, Q("25.1562 mm")),
])
pocket3 = body.newObject("PartDesign::Pocket", "Pocket002")
pocket3.Profile = sketch6
pocket3.Length = 2
pocket3.Reversed = True

doc.recompute()
